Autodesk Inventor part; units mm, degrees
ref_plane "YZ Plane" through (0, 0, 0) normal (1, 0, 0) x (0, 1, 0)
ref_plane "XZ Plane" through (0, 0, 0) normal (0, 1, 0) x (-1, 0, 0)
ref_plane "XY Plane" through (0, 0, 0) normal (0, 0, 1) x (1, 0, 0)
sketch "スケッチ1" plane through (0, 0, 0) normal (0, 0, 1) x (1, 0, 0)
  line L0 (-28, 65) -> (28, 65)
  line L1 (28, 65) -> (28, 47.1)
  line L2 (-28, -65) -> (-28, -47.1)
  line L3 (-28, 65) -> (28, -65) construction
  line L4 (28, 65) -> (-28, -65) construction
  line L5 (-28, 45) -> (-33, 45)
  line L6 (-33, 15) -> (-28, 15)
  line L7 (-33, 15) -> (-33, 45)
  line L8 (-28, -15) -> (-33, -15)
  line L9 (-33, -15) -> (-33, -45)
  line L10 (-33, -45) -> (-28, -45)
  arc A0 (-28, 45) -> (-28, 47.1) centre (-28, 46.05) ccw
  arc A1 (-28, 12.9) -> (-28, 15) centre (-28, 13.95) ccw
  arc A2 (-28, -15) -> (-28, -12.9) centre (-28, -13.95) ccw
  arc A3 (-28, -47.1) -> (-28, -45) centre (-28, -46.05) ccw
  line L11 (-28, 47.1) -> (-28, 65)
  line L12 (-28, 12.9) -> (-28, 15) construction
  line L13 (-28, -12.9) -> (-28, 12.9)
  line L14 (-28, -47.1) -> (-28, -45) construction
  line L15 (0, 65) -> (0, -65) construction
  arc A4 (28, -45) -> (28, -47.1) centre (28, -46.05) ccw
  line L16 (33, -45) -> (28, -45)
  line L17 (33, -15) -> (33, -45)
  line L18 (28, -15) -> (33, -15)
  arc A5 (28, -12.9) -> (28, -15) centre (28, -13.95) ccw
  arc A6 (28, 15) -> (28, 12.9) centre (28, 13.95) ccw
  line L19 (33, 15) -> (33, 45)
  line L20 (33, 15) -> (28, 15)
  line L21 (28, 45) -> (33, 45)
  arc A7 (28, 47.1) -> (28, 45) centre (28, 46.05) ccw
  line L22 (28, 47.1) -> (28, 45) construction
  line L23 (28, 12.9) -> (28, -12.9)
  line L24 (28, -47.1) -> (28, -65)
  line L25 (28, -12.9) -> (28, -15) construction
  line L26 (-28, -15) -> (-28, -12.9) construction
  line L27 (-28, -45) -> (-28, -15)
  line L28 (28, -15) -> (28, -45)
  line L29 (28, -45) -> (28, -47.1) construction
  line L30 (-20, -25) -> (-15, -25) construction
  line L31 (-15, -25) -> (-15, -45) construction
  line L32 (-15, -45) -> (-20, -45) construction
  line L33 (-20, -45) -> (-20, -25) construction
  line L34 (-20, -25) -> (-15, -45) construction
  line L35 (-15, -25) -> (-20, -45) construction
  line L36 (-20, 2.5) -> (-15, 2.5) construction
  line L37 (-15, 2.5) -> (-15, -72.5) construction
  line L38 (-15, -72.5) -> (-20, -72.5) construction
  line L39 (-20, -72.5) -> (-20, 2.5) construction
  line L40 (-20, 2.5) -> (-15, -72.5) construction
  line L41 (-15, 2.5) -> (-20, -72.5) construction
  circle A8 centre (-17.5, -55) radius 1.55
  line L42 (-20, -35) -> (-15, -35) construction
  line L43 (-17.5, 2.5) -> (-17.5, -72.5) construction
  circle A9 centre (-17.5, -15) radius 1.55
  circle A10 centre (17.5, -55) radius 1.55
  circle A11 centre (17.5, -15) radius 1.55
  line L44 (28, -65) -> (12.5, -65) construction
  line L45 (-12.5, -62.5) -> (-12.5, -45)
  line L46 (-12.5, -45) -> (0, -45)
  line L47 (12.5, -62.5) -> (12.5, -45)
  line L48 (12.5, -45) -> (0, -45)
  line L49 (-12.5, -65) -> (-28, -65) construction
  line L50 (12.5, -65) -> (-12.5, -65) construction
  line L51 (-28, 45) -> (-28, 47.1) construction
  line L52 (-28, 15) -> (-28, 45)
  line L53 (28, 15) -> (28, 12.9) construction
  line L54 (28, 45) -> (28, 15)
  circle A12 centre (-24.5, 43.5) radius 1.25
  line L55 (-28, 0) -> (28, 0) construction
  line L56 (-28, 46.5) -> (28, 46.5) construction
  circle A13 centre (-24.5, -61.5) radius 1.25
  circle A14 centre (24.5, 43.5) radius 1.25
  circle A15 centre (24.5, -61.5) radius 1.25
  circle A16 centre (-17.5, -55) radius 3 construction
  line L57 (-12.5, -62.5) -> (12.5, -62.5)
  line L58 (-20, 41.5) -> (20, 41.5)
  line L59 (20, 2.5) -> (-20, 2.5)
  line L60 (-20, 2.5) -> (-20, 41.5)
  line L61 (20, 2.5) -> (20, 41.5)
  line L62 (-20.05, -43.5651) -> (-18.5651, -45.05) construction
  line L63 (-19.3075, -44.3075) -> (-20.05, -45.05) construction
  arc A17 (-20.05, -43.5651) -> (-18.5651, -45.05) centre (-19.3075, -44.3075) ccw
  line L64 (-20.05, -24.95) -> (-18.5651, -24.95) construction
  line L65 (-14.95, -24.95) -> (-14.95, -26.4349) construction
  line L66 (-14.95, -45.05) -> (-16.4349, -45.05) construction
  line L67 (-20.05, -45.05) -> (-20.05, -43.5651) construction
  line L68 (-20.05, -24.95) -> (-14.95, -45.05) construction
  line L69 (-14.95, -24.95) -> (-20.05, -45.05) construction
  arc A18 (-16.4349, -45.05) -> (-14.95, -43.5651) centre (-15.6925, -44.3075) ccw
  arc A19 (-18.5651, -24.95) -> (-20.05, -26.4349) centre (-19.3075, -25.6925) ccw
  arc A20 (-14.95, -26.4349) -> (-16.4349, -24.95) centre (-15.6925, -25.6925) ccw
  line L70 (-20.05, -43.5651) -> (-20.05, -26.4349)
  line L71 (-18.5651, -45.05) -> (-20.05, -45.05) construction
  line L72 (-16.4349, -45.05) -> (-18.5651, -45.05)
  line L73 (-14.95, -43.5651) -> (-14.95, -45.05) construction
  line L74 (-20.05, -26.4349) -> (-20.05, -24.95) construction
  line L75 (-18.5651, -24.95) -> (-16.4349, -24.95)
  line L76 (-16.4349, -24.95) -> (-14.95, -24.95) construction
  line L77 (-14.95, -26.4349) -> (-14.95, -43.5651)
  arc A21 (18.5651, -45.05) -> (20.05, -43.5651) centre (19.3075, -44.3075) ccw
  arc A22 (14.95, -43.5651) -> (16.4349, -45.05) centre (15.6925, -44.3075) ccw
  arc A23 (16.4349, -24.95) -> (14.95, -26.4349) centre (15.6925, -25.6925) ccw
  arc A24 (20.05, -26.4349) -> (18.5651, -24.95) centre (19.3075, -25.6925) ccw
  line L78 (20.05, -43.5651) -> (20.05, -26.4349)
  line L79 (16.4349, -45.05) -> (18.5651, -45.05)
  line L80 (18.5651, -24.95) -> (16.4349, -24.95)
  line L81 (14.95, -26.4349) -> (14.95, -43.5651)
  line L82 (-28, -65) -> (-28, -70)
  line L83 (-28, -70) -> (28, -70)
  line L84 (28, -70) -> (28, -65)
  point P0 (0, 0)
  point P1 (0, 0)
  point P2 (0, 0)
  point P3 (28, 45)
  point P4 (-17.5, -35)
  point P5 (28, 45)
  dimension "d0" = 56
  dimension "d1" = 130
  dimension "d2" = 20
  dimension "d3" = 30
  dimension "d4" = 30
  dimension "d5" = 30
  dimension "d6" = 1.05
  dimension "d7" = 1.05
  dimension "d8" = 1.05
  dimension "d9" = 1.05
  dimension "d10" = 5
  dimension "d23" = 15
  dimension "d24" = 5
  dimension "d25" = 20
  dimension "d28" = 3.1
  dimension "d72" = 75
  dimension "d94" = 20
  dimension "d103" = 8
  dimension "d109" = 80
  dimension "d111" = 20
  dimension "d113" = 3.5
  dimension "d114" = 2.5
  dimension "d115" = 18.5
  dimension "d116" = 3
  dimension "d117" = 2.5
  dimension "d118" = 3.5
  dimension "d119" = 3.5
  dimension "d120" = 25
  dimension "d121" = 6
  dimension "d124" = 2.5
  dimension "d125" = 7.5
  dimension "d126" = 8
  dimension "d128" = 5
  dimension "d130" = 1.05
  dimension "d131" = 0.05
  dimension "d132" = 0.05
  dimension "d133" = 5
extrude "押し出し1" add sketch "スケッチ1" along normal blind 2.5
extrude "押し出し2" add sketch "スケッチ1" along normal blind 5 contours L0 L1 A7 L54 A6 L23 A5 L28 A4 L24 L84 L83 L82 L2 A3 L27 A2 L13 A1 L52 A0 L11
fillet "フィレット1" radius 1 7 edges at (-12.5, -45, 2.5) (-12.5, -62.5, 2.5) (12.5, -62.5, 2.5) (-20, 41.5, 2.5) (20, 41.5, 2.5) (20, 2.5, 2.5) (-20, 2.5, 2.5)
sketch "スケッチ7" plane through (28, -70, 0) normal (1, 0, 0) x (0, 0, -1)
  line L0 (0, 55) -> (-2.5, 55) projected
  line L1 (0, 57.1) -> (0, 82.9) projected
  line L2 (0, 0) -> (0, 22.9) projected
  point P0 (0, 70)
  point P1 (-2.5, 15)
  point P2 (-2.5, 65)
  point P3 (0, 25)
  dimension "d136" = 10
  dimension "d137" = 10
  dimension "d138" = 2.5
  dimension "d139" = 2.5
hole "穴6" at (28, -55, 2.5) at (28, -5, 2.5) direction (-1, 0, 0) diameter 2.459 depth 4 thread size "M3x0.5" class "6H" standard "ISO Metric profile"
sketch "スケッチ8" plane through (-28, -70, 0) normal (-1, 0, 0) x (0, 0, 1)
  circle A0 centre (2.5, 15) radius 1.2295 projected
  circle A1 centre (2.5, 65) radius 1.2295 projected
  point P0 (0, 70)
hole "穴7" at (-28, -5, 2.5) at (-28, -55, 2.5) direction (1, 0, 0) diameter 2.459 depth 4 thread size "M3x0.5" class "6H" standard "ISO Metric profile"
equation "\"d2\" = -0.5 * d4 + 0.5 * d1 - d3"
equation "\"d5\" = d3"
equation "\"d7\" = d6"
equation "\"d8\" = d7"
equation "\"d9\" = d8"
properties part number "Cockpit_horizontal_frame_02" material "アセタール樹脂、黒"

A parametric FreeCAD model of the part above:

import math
import FreeCAD as App
import Part
import Sketcher
Q = App.Units.Quantity


def edges_at(feature, points):
    """Names of the edges that pass closest to the given points."""
    edges = feature.Shape.Edges
    near = lambda p: min(range(len(edges)), key=lambda i: edges[i].distToShape(Part.Vertex(*p))[0])
    return sorted({f"Edge{near(p) + 1}" for p in points})

doc = App.newDocument("Part")
body = doc.addObject("PartDesign::Body", "Body")

# Sketch on XY plane
sketch1 = body.newObject("Sketcher::SketchObject", "Sketch")
sketch1.AttachmentSupport = (doc.getObject("XY_Plane"), [""])
sketch1.MapMode = "FlatFace"
sketch1.addGeometry(Part.LineSegment(App.Vector(28, 65, 0), App.Vector(-28, 65, 0)), False)
sketch1.addGeometry(Part.LineSegment(App.Vector(-28, 65, 0), App.Vector(-28, 47.1, 0)), False)
sketch1.addGeometry(Part.ArcOfCircle(Part.Circle(App.Vector(-28, 46, 0), App.Vector(0, 0, 1), 1), math.radians(-90), math.radians(90)), False)
sketch1.addGeometry(Part.LineSegment(App.Vector(-28, 45, 0), App.Vector(-33, 45, 0)), False)
sketch1.addGeometry(Part.LineSegment(App.Vector(-33, 45, 0), App.Vector(-33, 15, 0)), False)
sketch1.addGeometry(Part.LineSegment(App.Vector(-33, 15, 0), App.Vector(-28, 15, 0)), False)
sketch1.addGeometry(Part.ArcOfCircle(Part.Circle(App.Vector(-28, 13.9, 0), App.Vector(0, 0, 1), 1), math.radians(-90), math.radians(90)), False)
sketch1.addGeometry(Part.LineSegment(App.Vector(-28, 12.9, 0), App.Vector(-28, -12.9, 0)), False)
sketch1.addGeometry(Part.ArcOfCircle(Part.Circle(App.Vector(-28, -13.9, 0), App.Vector(0, 0, 1), 1.1), math.radians(-90), math.radians(90)), False)
sketch1.addGeometry(Part.LineSegment(App.Vector(-28, -15, 0), App.Vector(-33, -15, 0)), False)
sketch1.addGeometry(Part.LineSegment(App.Vector(-33, -15, 0), App.Vector(-33, -45, 0)), False)
sketch1.addGeometry(Part.LineSegment(App.Vector(-33, -45, 0), App.Vector(-28, -45, 0)), False)
sketch1.addGeometry(Part.ArcOfCircle(Part.Circle(App.Vector(-28, -46, 0), App.Vector(0, 0, 1), 1.1), math.radians(-90), math.radians(90)), False)
sketch1.addGeometry(Part.LineSegment(App.Vector(-28, -47.1, 0), App.Vector(-28, -70, 0)), False)
sketch1.addGeometry(Part.LineSegment(App.Vector(-28, -70, 0), App.Vector(28, -70, 0)), False)
sketch1.addGeometry(Part.LineSegment(App.Vector(28, -70, 0), App.Vector(28, -47.1, 0)), False)
sketch1.addGeometry(Part.ArcOfCircle(Part.Circle(App.Vector(28, -46, 0), App.Vector(0, 0, 1), 1), math.radians(90), math.radians(270)), False)
sketch1.addGeometry(Part.LineSegment(App.Vector(28, -45, 0), App.Vector(33, -45, 0)), False)
sketch1.addGeometry(Part.LineSegment(App.Vector(33, -45, 0), App.Vector(33, -15, 0)), False)
sketch1.addGeometry(Part.LineSegment(App.Vector(33, -15, 0), App.Vector(28, -15, 0)), False)
sketch1.addGeometry(Part.ArcOfCircle(Part.Circle(App.Vector(28, -13.9, 0), App.Vector(0, 0, 1), 1), math.radians(90), math.radians(270)), False)
sketch1.addGeometry(Part.LineSegment(App.Vector(28, -12.9, 0), App.Vector(28, 12.9, 0)), False)
sketch1.addGeometry(Part.ArcOfCircle(Part.Circle(App.Vector(28, 13.9, 0), App.Vector(0, 0, 1), 1.1), math.radians(90), math.radians(270)), False)
sketch1.addGeometry(Part.LineSegment(App.Vector(28, 15, 0), App.Vector(33, 15, 0)), False)
sketch1.addGeometry(Part.LineSegment(App.Vector(33, 15, 0), App.Vector(33, 45, 0)), False)
sketch1.addGeometry(Part.LineSegment(App.Vector(33, 45, 0), App.Vector(28, 45, 0)), False)
sketch1.addGeometry(Part.ArcOfCircle(Part.Circle(App.Vector(28, 46, 0), App.Vector(0, 0, 1), 1.1), math.radians(90), math.radians(270)), False)
sketch1.addGeometry(Part.LineSegment(App.Vector(28, 47.1, 0), App.Vector(28, 65, 0)), False)
sketch1.addGeometry(Part.Circle(App.Vector(-24.5, -61.5, 0), App.Vector(0, 0, 1), 1.2), False)
sketch1.addGeometry(Part.Circle(App.Vector(-17.5, -55, 0), App.Vector(0, 0, 1), 1.6), False)
sketch1.addGeometry(Part.ArcOfCircle(Part.Circle(App.Vector(-19.3, -44.3, 0), App.Vector(0, 0, 1), 1), math.radians(135), math.radians(315)), False)
sketch1.addGeometry(Part.LineSegment(App.Vector(-20.1, -43.6, 0), App.Vector(-20.1, -26.4, 0)), False)
sketch1.addGeometry(Part.ArcOfCircle(Part.Circle(App.Vector(-19.3, -25.7, 0), App.Vector(0, 0, 1), 1), math.radians(45), math.radians(225)), False)
sketch1.addGeometry(Part.LineSegment(App.Vector(-18.6, -24.9, 0), App.Vector(-16.4, -24.9, 0)), False)
sketch1.addGeometry(Part.ArcOfCircle(Part.Circle(App.Vector(-15.7, -25.7, 0), App.Vector(0, 0, 1), 1), math.radians(-45), math.radians(135)), False)
sketch1.addGeometry(Part.LineSegment(App.Vector(-14.9, -26.4, 0), App.Vector(-14.9, -43.6, 0)), False)
sketch1.addGeometry(Part.ArcOfCircle(Part.Circle(App.Vector(-15.7, -44.3, 0), App.Vector(0, 0, 1), 1), math.radians(-135), math.radians(45)), False)
sketch1.addGeometry(Part.LineSegment(App.Vector(-16.4, -45, 0), App.Vector(-18.6, -45, 0)), False)
sketch1.addGeometry(Part.Circle(App.Vector(-17.5, -15, 0), App.Vector(0, 0, 1), 1.6), False)
sketch1.addGeometry(Part.LineSegment(App.Vector(12.5, -62.5, 0), App.Vector(-12.5, -62.5, 0)), False)
sketch1.addGeometry(Part.LineSegment(App.Vector(-12.5, -62.5, 0), App.Vector(-12.5, -45, 0)), False)
sketch1.addGeometry(Part.LineSegment(App.Vector(-12.5, -45, 0), App.Vector(12.5, -45, 0)), False)
sketch1.addGeometry(Part.LineSegment(App.Vector(12.5, -45, 0), App.Vector(12.5, -62.5, 0)), False)
sketch1.addGeometry(Part.Circle(App.Vector(17.5, -55, 0), App.Vector(0, 0, 1), 1.6), False)
sketch1.addGeometry(Part.Circle(App.Vector(24.5, -61.5, 0), App.Vector(0, 0, 1), 1.2), False)
sketch1.addGeometry(Part.ArcOfCircle(Part.Circle(App.Vector(19.3, -44.3, 0), App.Vector(0, 0, 1), 1), math.radians(-135), math.radians(45)), False)
sketch1.addGeometry(Part.LineSegment(App.Vector(18.6, -45, 0), App.Vector(16.4, -45, 0)), False)
sketch1.addGeometry(Part.ArcOfCircle(Part.Circle(App.Vector(15.7, -44.3, 0), App.Vector(0, 0, 1), 1), math.radians(135), math.radians(315)), False)
sketch1.addGeometry(Part.LineSegment(App.Vector(14.9, -43.6, 0), App.Vector(14.9, -26.4, 0)), False)
sketch1.addGeometry(Part.ArcOfCircle(Part.Circle(App.Vector(15.7, -25.7, 0), App.Vector(0, 0, 1), 1), math.radians(45), math.radians(225)), False)
sketch1.addGeometry(Part.LineSegment(App.Vector(16.4, -24.9, 0), App.Vector(18.6, -24.9, 0)), False)
sketch1.addGeometry(Part.ArcOfCircle(Part.Circle(App.Vector(19.3, -25.7, 0), App.Vector(0, 0, 1), 1), math.radians(-45), math.radians(135)), False)
sketch1.addGeometry(Part.LineSegment(App.Vector(20.1, -26.4, 0), App.Vector(20.1, -43.6, 0)), False)
sketch1.addGeometry(Part.Circle(App.Vector(17.5, -15, 0), App.Vector(0, 0, 1), 1.6), False)
sketch1.addGeometry(Part.Circle(App.Vector(-24.5, 43.5, 0), App.Vector(0, 0, 1), 1.2), False)
sketch1.addGeometry(Part.LineSegment(App.Vector(-20, 2.5, 0), App.Vector(-20, 41.5, 0)), False)
sketch1.addGeometry(Part.LineSegment(App.Vector(-20, 41.5, 0), App.Vector(20, 41.5, 0)), False)
sketch1.addGeometry(Part.LineSegment(App.Vector(20, 41.5, 0), App.Vector(20, 2.5, 0)), False)
sketch1.addGeometry(Part.LineSegment(App.Vector(20, 2.5, 0), App.Vector(-20, 2.5, 0)), False)
sketch1.addGeometry(Part.Circle(App.Vector(24.5, 43.5, 0), App.Vector(0, 0, 1), 1.2), False)
sketch1.addConstraint(Sketcher.Constraint("Coincident", 0, 2, 1, 1))
sketch1.addConstraint(Sketcher.Constraint("Coincident", 1, 2, 2, 2))
sketch1.addConstraint(Sketcher.Constraint("Tangent", 2, 1, 3, 1))
sketch1.addConstraint(Sketcher.Constraint("Coincident", 3, 2, 4, 1))
sketch1.addConstraint(Sketcher.Constraint("Coincident", 4, 2, 5, 1))
sketch1.addConstraint(Sketcher.Constraint("Tangent", 5, 2, 6, 2))
sketch1.addConstraint(Sketcher.Constraint("Coincident", 6, 1, 7, 1))
sketch1.addConstraint(Sketcher.Constraint("Coincident", 7, 2, 8, 2))
sketch1.addConstraint(Sketcher.Constraint("Tangent", 8, 1, 9, 1))
sketch1.addConstraint(Sketcher.Constraint("Coincident", 9, 2, 10, 1))
sketch1.addConstraint(Sketcher.Constraint("Coincident", 10, 2, 11, 1))
sketch1.addConstraint(Sketcher.Constraint("Tangent", 11, 2, 12, 2))
sketch1.addConstraint(Sketcher.Constraint("Coincident", 12, 1, 13, 1))
sketch1.addConstraint(Sketcher.Constraint("Coincident", 13, 2, 14, 1))
sketch1.addConstraint(Sketcher.Constraint("Coincident", 14, 2, 15, 1))
sketch1.addConstraint(Sketcher.Constraint("Coincident", 15, 2, 16, 2))
sketch1.addConstraint(Sketcher.Constraint("Tangent", 16, 1, 17, 1))
sketch1.addConstraint(Sketcher.Constraint("Coincident", 17, 2, 18, 1))
sketch1.addConstraint(Sketcher.Constraint("Coincident", 18, 2, 19, 1))
sketch1.addConstraint(Sketcher.Constraint("Tangent", 19, 2, 20, 2))
sketch1.addConstraint(Sketcher.Constraint("Coincident", 20, 1, 21, 1))
sketch1.addConstraint(Sketcher.Constraint("Coincident", 21, 2, 22, 2))
sketch1.addConstraint(Sketcher.Constraint("Tangent", 22, 1, 23, 1))
sketch1.addConstraint(Sketcher.Constraint("Coincident", 23, 2, 24, 1))
sketch1.addConstraint(Sketcher.Constraint("Coincident", 24, 2, 25, 1))
sketch1.addConstraint(Sketcher.Constraint("Tangent", 25, 2, 26, 2))
sketch1.addConstraint(Sketcher.Constraint("Coincident", 26, 1, 27, 1))
sketch1.addConstraint(Sketcher.Constraint("Coincident", 27, 2, 0, 1))
sketch1.addConstraint(Sketcher.Constraint("Coincident", 30, 1, 31, 1))
sketch1.addConstraint(Sketcher.Constraint("Coincident", 31, 2, 32, 2))
sketch1.addConstraint(Sketcher.Constraint("Coincident", 32, 1, 33, 1))
sketch1.addConstraint(Sketcher.Constraint("Coincident", 33, 2, 34, 2))
sketch1.addConstraint(Sketcher.Constraint("Coincident", 34, 1, 35, 1))
sketch1.addConstraint(Sketcher.Constraint("Coincident", 35, 2, 36, 2))
sketch1.addConstraint(Sketcher.Constraint("Coincident", 36, 1, 37, 1))
sketch1.addConstraint(Sketcher.Constraint("Coincident", 37, 2, 30, 2))
sketch1.addConstraint(Sketcher.Constraint("Coincident", 39, 2, 40, 1))
sketch1.addConstraint(Sketcher.Constraint("Coincident", 40, 2, 41, 1))
sketch1.addConstraint(Sketcher.Constraint("Coincident", 41, 2, 42, 1))
sketch1.addConstraint(Sketcher.Constraint("Coincident", 42, 2, 39, 1))
sketch1.addConstraint(Sketcher.Constraint("Coincident", 45, 1, 46, 1))
sketch1.addConstraint(Sketcher.Constraint("Coincident", 46, 2, 47, 2))
sketch1.addConstraint(Sketcher.Constraint("Coincident", 47, 1, 48, 1))
sketch1.addConstraint(Sketcher.Constraint("Coincident", 48, 2, 49, 2))
sketch1.addConstraint(Sketcher.Constraint("Coincident", 49, 1, 50, 1))
sketch1.addConstraint(Sketcher.Constraint("Coincident", 50, 2, 51, 2))
sketch1.addConstraint(Sketcher.Constraint("Coincident", 51, 1, 52, 1))
sketch1.addConstraint(Sketcher.Constraint("Coincident", 52, 2, 45, 2))
sketch1.addConstraint(Sketcher.Constraint("Coincident", 55, 2, 56, 1))
sketch1.addConstraint(Sketcher.Constraint("Coincident", 56, 2, 57, 1))
sketch1.addConstraint(Sketcher.Constraint("Coincident", 57, 2, 58, 1))
sketch1.addConstraint(Sketcher.Constraint("Coincident", 58, 2, 55, 1))
sketch1.addConstraint(Sketcher.Constraint("Horizontal", 0))
sketch1.addConstraint(Sketcher.Constraint("Vertical", 1))
sketch1.addConstraint(Sketcher.Constraint("Horizontal", 3))
sketch1.addConstraint(Sketcher.Constraint("Vertical", 4))
sketch1.addConstraint(Sketcher.Constraint("Horizontal", 5))
sketch1.addConstraint(Sketcher.Constraint("Vertical", 7))
sketch1.addConstraint(Sketcher.Constraint("Horizontal", 9))
sketch1.addConstraint(Sketcher.Constraint("Vertical", 10))
sketch1.addConstraint(Sketcher.Constraint("Horizontal", 11))
sketch1.addConstraint(Sketcher.Constraint("Vertical", 13))
sketch1.addConstraint(Sketcher.Constraint("Horizontal", 14))
sketch1.addConstraint(Sketcher.Constraint("Vertical", 15))
sketch1.addConstraint(Sketcher.Constraint("Horizontal", 17))
sketch1.addConstraint(Sketcher.Constraint("Vertical", 18))
sketch1.addConstraint(Sketcher.Constraint("Horizontal", 19))
sketch1.addConstraint(Sketcher.Constraint("Vertical", 21))
sketch1.addConstraint(Sketcher.Constraint("Horizontal", 23))
sketch1.addConstraint(Sketcher.Constraint("Vertical", 24))
sketch1.addConstraint(Sketcher.Constraint("Horizontal", 25))
sketch1.addConstraint(Sketcher.Constraint("Vertical", 27))
sketch1.addConstraint(Sketcher.Constraint("Vertical", 31))
sketch1.addConstraint(Sketcher.Constraint("Horizontal", 33))
sketch1.addConstraint(Sketcher.Constraint("Vertical", 35))
sketch1.addConstraint(Sketcher.Constraint("Horizontal", 37))
sketch1.addConstraint(Sketcher.Constraint("Horizontal", 39))
sketch1.addConstraint(Sketcher.Constraint("Vertical", 40))
sketch1.addConstraint(Sketcher.Constraint("Horizontal", 41))
sketch1.addConstraint(Sketcher.Constraint("Vertical", 42))
sketch1.addConstraint(Sketcher.Constraint("Horizontal", 46))
sketch1.addConstraint(Sketcher.Constraint("Vertical", 48))
sketch1.addConstraint(Sketcher.Constraint("Horizontal", 50))
sketch1.addConstraint(Sketcher.Constraint("Vertical", 52))
sketch1.addConstraint(Sketcher.Constraint("Vertical", 55))
sketch1.addConstraint(Sketcher.Constraint("Horizontal", 56))
sketch1.addConstraint(Sketcher.Constraint("Vertical", 57))
sketch1.addConstraint(Sketcher.Constraint("Horizontal", 58))
sketch1.addConstraint(Sketcher.Constraint("Equal", 2, 6))
sketch1.addConstraint(Sketcher.Constraint("Equal", 6, 8))
sketch1.addConstraint(Sketcher.Constraint("Equal", 8, 12))
sketch1.addConstraint(Sketcher.Constraint("Equal", 12, 16))
sketch1.addConstraint(Sketcher.Constraint("Equal", 16, 20))
sketch1.addConstraint(Sketcher.Constraint("Equal", 20, 22))
sketch1.addConstraint(Sketcher.Constraint("Equal", 22, 26))
sketch1.addConstraint(Sketcher.Constraint("Equal", 26, 30))
sketch1.addConstraint(Sketcher.Constraint("Equal", 30, 32))
sketch1.addConstraint(Sketcher.Constraint("Equal", 32, 34))
sketch1.addConstraint(Sketcher.Constraint("Equal", 34, 36))
sketch1.addConstraint(Sketcher.Constraint("Equal", 29, 38))
sketch1.addConstraint(Sketcher.Constraint("Equal", 38, 43))
sketch1.addConstraint(Sketcher.Constraint("Equal", 28, 44))
sketch1.addConstraint(Sketcher.Constraint("Equal", 36, 45))
sketch1.addConstraint(Sketcher.Constraint("Equal", 45, 47))
sketch1.addConstraint(Sketcher.Constraint("Equal", 47, 49))
sketch1.addConstraint(Sketcher.Constraint("Equal", 49, 51))
sketch1.addConstraint(Sketcher.Constraint("Equal", 43, 53))
sketch1.addConstraint(Sketcher.Constraint("Equal", 44, 54))
sketch1.addConstraint(Sketcher.Constraint("Equal", 54, 59))
sketch1.addConstraint(Sketcher.Constraint("Symmetric", 2, 3, 16, 3, -1, 1))
sketch1.addConstraint(Sketcher.Constraint("Symmetric", 6, 3, 20, 3, -1, 1))
sketch1.addConstraint(Sketcher.Constraint("Symmetric", 8, 3, 22, 3, -1, 1))
sketch1.addConstraint(Sketcher.Constraint("Symmetric", 12, 3, 26, 3, -1, 1))
sketch1.addConstraint(Sketcher.Constraint("Symmetric", 12, 3, 16, 3, -2))
sketch1.addConstraint(Sketcher.Constraint("Symmetric", 8, 3, 20, 3, -2))
sketch1.addConstraint(Sketcher.Constraint("Symmetric", 29, 3, 43, 3, -2))
sketch1.addConstraint(Sketcher.Constraint("Symmetric", 28, 3, 44, 3, -2))
sketch1.addConstraint(Sketcher.Constraint("Symmetric", 30, 3, 45, 3, -2))
sketch1.addConstraint(Sketcher.Constraint("Symmetric", 36, 3, 47, 3, -2))
sketch1.addConstraint(Sketcher.Constraint("Symmetric", 34, 3, 49, 3, -2))
sketch1.addConstraint(Sketcher.Constraint("Symmetric", 32, 3, 51, 3, -2))
sketch1.addConstraint(Sketcher.Constraint("Symmetric", 38, 3, 53, 3, -2))
sketch1.addConstraint(Sketcher.Constraint("Symmetric", 54, 3, 59, 3, -2))
sketch1.addConstraint(Sketcher.Constraint("Horizontal", 32, 3, 34, 3))
sketch1.addConstraint(Sketcher.Constraint("Horizontal", 30, 3, 36, 3))
sketch1.addConstraint(Sketcher.Constraint("Horizontal", 53, 3, 8, 1))
sketch1.addConstraint(Sketcher.Constraint("Horizontal", 31, 2, 34, 1))
sketch1.addConstraint(Sketcher.Constraint("Horizontal", 30, 1, 35, 2))
sketch1.addConstraint(Sketcher.Constraint("Horizontal", 17, 2, 40, 2))
sketch1.addConstraint(Sketcher.Constraint("Horizontal", 37, 2, 45, 1))
sketch1.addConstraint(Sketcher.Constraint("Horizontal", 35, 2, 47, 1))
sketch1.addConstraint(Sketcher.Constraint("Horizontal", 33, 2, 49, 1))
sketch1.addConstraint(Sketcher.Constraint("Horizontal", 48, 2, 51, 1))
sketch1.addConstraint(Sketcher.Constraint("Vertical", 2, 3, 6, 3))
sketch1.addConstraint(Sketcher.Constraint("Vertical", 30, 3, 32, 3))
sketch1.addConstraint(Sketcher.Constraint("Vertical", 29, 3, 38, 3))
sketch1.addConstraint(Sketcher.Constraint("Vertical", 28, 3, 54, 3))
sketch1.addConstraint(Sketcher.Constraint("Vertical", 12, 3, 0, 2))
sketch1.addConstraint(Sketcher.Constraint("Vertical", 5, 2, 6, 1))
sketch1.addConstraint(Sketcher.Constraint("Vertical", 4, 2, 9, 2))
sketch1.addConstraint(Sketcher.Constraint("Vertical", 11, 2, 12, 1))
sketch1.addConstraint(Sketcher.Constraint("Vertical", 26, 3, 14, 2))
sketch1.addConstraint(Sketcher.Constraint("Vertical", 19, 2, 20, 1))
sketch1.addConstraint(Sketcher.Constraint("Vertical", 18, 2, 23, 2))
sketch1.addConstraint(Sketcher.Constraint("Vertical", 25, 2, 26, 1))
sketch1.addConstraint(Sketcher.Constraint("Vertical", 33, 2, 36, 1))
sketch1.addConstraint(Sketcher.Constraint("Equal", 11, 17))
sketch1.addConstraint(Sketcher.Constraint("Diameter", 28, Q("2.5 mm")))
sketch1.addConstraint(Sketcher.Constraint("Diameter", 29, Q("3.1 mm")))
sketch1.addConstraint(Sketcher.Constraint("DistanceX", 0, 2, 0, 1, Q("56 mm")))
sketch1.addConstraint(Sketcher.Constraint("DistanceX", 3, 2, 3, 1, Q("5 mm")))
sketch1.addConstraint(Sketcher.Constraint("DistanceX", 39, 2, 39, 1, Q("25 mm")))
sketch1.addConstraint(Sketcher.Constraint("DistanceY", 4, 2, 4, 1, Q("30 mm")))
sketch1.addConstraint(Sketcher.Constraint("Radius", 2, Q("1.05 mm")))
sketch1.addConstraint(Sketcher.Constraint("DistanceY", 38, 3, -1, 1, Q("15 mm")))
sketch1.addConstraint(Sketcher.Constraint("DistanceX", 55, 2, -1, 1, Q("20 mm")))
sketch1.addConstraint(Sketcher.Constraint("DistanceX", -1, 1, 56, 2, Q("20 mm")))
sketch1.addConstraint(Sketcher.Constraint("DistanceY", -1, 1, 57, 2, Q("2.5 mm")))
sketch1.addConstraint(Sketcher.Constraint("DistanceY", 55, 1, 55, 2, Q("39 mm")))
sketch1.addConstraint(Sketcher.Constraint("DistanceY", 1, 2, 1, 1, Q("17.9 mm")))
sketch1.addConstraint(Sketcher.Constraint("DistanceY", 13, 2, 13, 1, Q("22.9 mm")))
sketch1.addConstraint(Sketcher.Constraint("DistanceY", 40, 1, 40, 2, Q("17.5 mm")))
sketch1.addConstraint(Sketcher.Constraint("DistanceY", 29, 3, -1, 1, Q("55 mm")))
sketch1.addConstraint(Sketcher.Constraint("DistanceX", 28, 3, -1, 1, Q("24.5 mm")))
sketch1.addConstraint(Sketcher.Constraint("DistanceY", 28, 3, -1, 1, Q("61.5 mm")))
sketch1.addConstraint(Sketcher.Constraint("DistanceX", 29, 3, -1, 1, Q("17.5 mm")))
sketch1.addConstraint(Sketcher.Constraint("DistanceY", -1, 1, 54, 3, Q("43.5 mm")))
sketch1.addConstraint(Sketcher.Constraint("DistanceX", 39, 2, -1, 1, Q("12.5 mm")))
sketch1.addConstraint(Sketcher.Constraint("DistanceX", 30, 1, -1, 1, Q("20.05 mm")))
sketch1.addConstraint(Sketcher.Constraint("DistanceY", 32, 1, -1, 1, Q("24.95 mm")))
sketch1.addConstraint(Sketcher.Constraint("DistanceX", 34, 1, -1, 1, Q("14.95 mm")))
sketch1.addConstraint(Sketcher.Constraint("DistanceY", 36, 1, -1, 1, Q("45.05 mm")))
sketch1.addConstraint(Sketcher.Constraint("DistanceX", 33, 1, 33, 2, Q("2.1302 mm")))
sketch1.addConstraint(Sketcher.Constraint("DistanceX", 30, 3, -1, 1, Q("19.3075 mm")))
pad1 = body.newObject("PartDesign::Pad", "Pad")
pad1.Profile = sketch1
pad1.Length = 2.5

# Sketch on XY plane
sketch2 = body.newObject("Sketcher::SketchObject", "Sketch001")
sketch2.AttachmentSupport = (doc.getObject("XY_Plane"), [""])
sketch2.MapMode = "FlatFace"
sketch2.addGeometry(Part.LineSegment(App.Vector(28, 65, 0), App.Vector(-28, 65, 0)), False)
sketch2.addGeometry(Part.LineSegment(App.Vector(-28, 65, 0), App.Vector(-28, 47.1, 0)), False)
sketch2.addGeometry(Part.ArcOfCircle(Part.Circle(App.Vector(-28, 46, 0), App.Vector(0, 0, 1), 1), math.radians(-90), math.radians(90)), False)
sketch2.addGeometry(Part.LineSegment(App.Vector(-28, 45, 0), App.Vector(-28, 15, 0)), False)
sketch2.addGeometry(Part.ArcOfCircle(Part.Circle(App.Vector(-28, 13.9, 0), App.Vector(0, 0, 1), 1), math.radians(-90), math.radians(90)), False)
sketch2.addGeometry(Part.LineSegment(App.Vector(-28, 12.9, 0), App.Vector(-28, -12.9, 0)), False)
sketch2.addGeometry(Part.ArcOfCircle(Part.Circle(App.Vector(-28, -13.9, 0), App.Vector(0, 0, 1), 1.1), math.radians(-90), math.radians(90)), False)
sketch2.addGeometry(Part.LineSegment(App.Vector(-28, -15, 0), App.Vector(-28, -45, 0)), False)
sketch2.addGeometry(Part.ArcOfCircle(Part.Circle(App.Vector(-28, -46, 0), App.Vector(0, 0, 1), 1.1), math.radians(-90), math.radians(90)), False)
sketch2.addGeometry(Part.LineSegment(App.Vector(-28, -47.1, 0), App.Vector(-28, -70, 0)), False)
sketch2.addGeometry(Part.LineSegment(App.Vector(-28, -70, 0), App.Vector(28, -70, 0)), False)
sketch2.addGeometry(Part.LineSegment(App.Vector(28, -70, 0), App.Vector(28, -47.1, 0)), False)
sketch2.addGeometry(Part.ArcOfCircle(Part.Circle(App.Vector(28, -46, 0), App.Vector(0, 0, 1), 1), math.radians(90), math.radians(270)), False)
sketch2.addGeometry(Part.LineSegment(App.Vector(28, -45, 0), App.Vector(28, -15, 0)), False)
sketch2.addGeometry(Part.ArcOfCircle(Part.Circle(App.Vector(28, -13.9, 0), App.Vector(0, 0, 1), 1), math.radians(90), math.radians(270)), False)
sketch2.addGeometry(Part.LineSegment(App.Vector(28, -12.9, 0), App.Vector(28, 12.9, 0)), False)
sketch2.addGeometry(Part.ArcOfCircle(Part.Circle(App.Vector(28, 13.9, 0), App.Vector(0, 0, 1), 1.1), math.radians(90), math.radians(270)), False)
sketch2.addGeometry(Part.LineSegment(App.Vector(28, 15, 0), App.Vector(28, 45, 0)), False)
sketch2.addGeometry(Part.ArcOfCircle(Part.Circle(App.Vector(28, 46, 0), App.Vector(0, 0, 1), 1.1), math.radians(90), math.radians(270)), False)
sketch2.addGeometry(Part.LineSegment(App.Vector(28, 47.1, 0), App.Vector(28, 65, 0)), False)
sketch2.addGeometry(Part.Circle(App.Vector(-24.5, -61.5, 0), App.Vector(0, 0, 1), 1.2), False)
sketch2.addGeometry(Part.Circle(App.Vector(-17.5, -55, 0), App.Vector(0, 0, 1), 1.6), False)
sketch2.addGeometry(Part.ArcOfCircle(Part.Circle(App.Vector(-19.3, -44.3, 0), App.Vector(0, 0, 1), 1), math.radians(135), math.radians(315)), False)
sketch2.addGeometry(Part.LineSegment(App.Vector(-20.1, -43.6, 0), App.Vector(-20.1, -26.4, 0)), False)
sketch2.addGeometry(Part.ArcOfCircle(Part.Circle(App.Vector(-19.3, -25.7, 0), App.Vector(0, 0, 1), 1), math.radians(45), math.radians(225)), False)
sketch2.addGeometry(Part.LineSegment(App.Vector(-18.6, -24.9, 0), App.Vector(-16.4, -24.9, 0)), False)
sketch2.addGeometry(Part.ArcOfCircle(Part.Circle(App.Vector(-15.7, -25.7, 0), App.Vector(0, 0, 1), 1), math.radians(-45), math.radians(135)), False)
sketch2.addGeometry(Part.LineSegment(App.Vector(-14.9, -26.4, 0), App.Vector(-14.9, -43.6, 0)), False)
sketch2.addGeometry(Part.ArcOfCircle(Part.Circle(App.Vector(-15.7, -44.3, 0), App.Vector(0, 0, 1), 1), math.radians(-135), math.radians(45)), False)
sketch2.addGeometry(Part.LineSegment(App.Vector(-16.4, -45, 0), App.Vector(-18.6, -45, 0)), False)
sketch2.addGeometry(Part.Circle(App.Vector(-17.5, -15, 0), App.Vector(0, 0, 1), 1.6), False)
sketch2.addGeometry(Part.LineSegment(App.Vector(12.5, -62.5, 0), App.Vector(-12.5, -62.5, 0)), False)
sketch2.addGeometry(Part.LineSegment(App.Vector(-12.5, -62.5, 0), App.Vector(-12.5, -45, 0)), False)
sketch2.addGeometry(Part.LineSegment(App.Vector(-12.5, -45, 0), App.Vector(12.5, -45, 0)), False)
sketch2.addGeometry(Part.LineSegment(App.Vector(12.5, -45, 0), App.Vector(12.5, -62.5, 0)), False)
sketch2.addGeometry(Part.Circle(App.Vector(17.5, -55, 0), App.Vector(0, 0, 1), 1.6), False)
sketch2.addGeometry(Part.Circle(App.Vector(24.5, -61.5, 0), App.Vector(0, 0, 1), 1.2), False)
sketch2.addGeometry(Part.ArcOfCircle(Part.Circle(App.Vector(19.3, -44.3, 0), App.Vector(0, 0, 1), 1), math.radians(-135), math.radians(45)), False)
sketch2.addGeometry(Part.LineSegment(App.Vector(18.6, -45, 0), App.Vector(16.4, -45, 0)), False)
sketch2.addGeometry(Part.ArcOfCircle(Part.Circle(App.Vector(15.7, -44.3, 0), App.Vector(0, 0, 1), 1), math.radians(135), math.radians(315)), False)
sketch2.addGeometry(Part.LineSegment(App.Vector(14.9, -43.6, 0), App.Vector(14.9, -26.4, 0)), False)
sketch2.addGeometry(Part.ArcOfCircle(Part.Circle(App.Vector(15.7, -25.7, 0), App.Vector(0, 0, 1), 1), math.radians(45), math.radians(225)), False)
sketch2.addGeometry(Part.LineSegment(App.Vector(16.4, -24.9, 0), App.Vector(18.6, -24.9, 0)), False)
sketch2.addGeometry(Part.ArcOfCircle(Part.Circle(App.Vector(19.3, -25.7, 0), App.Vector(0, 0, 1), 1), math.radians(-45), math.radians(135)), False)
sketch2.addGeometry(Part.LineSegment(App.Vector(20.1, -26.4, 0), App.Vector(20.1, -43.6, 0)), False)
sketch2.addGeometry(Part.Circle(App.Vector(17.5, -15, 0), App.Vector(0, 0, 1), 1.6), False)
sketch2.addGeometry(Part.Circle(App.Vector(-24.5, 43.5, 0), App.Vector(0, 0, 1), 1.2), False)
sketch2.addGeometry(Part.LineSegment(App.Vector(-20, 2.5, 0), App.Vector(-20, 41.5, 0)), False)
sketch2.addGeometry(Part.LineSegment(App.Vector(-20, 41.5, 0), App.Vector(20, 41.5, 0)), False)
sketch2.addGeometry(Part.LineSegment(App.Vector(20, 41.5, 0), App.Vector(20, 2.5, 0)), False)
sketch2.addGeometry(Part.LineSegment(App.Vector(20, 2.5, 0), App.Vector(-20, 2.5, 0)), False)
sketch2.addGeometry(Part.Circle(App.Vector(24.5, 43.5, 0), App.Vector(0, 0, 1), 1.2), False)
sketch2.addConstraint(Sketcher.Constraint("Coincident", 0, 2, 1, 1))
sketch2.addConstraint(Sketcher.Constraint("Coincident", 1, 2, 2, 2))
sketch2.addConstraint(Sketcher.Constraint("Coincident", 2, 1, 3, 1))
sketch2.addConstraint(Sketcher.Constraint("Coincident", 3, 2, 4, 2))
sketch2.addConstraint(Sketcher.Constraint("Coincident", 4, 1, 5, 1))
sketch2.addConstraint(Sketcher.Constraint("Coincident", 5, 2, 6, 2))
sketch2.addConstraint(Sketcher.Constraint("Coincident", 6, 1, 7, 1))
sketch2.addConstraint(Sketcher.Constraint("Coincident", 7, 2, 8, 2))
sketch2.addConstraint(Sketcher.Constraint("Coincident", 8, 1, 9, 1))
sketch2.addConstraint(Sketcher.Constraint("Coincident", 9, 2, 10, 1))
sketch2.addConstraint(Sketcher.Constraint("Coincident", 10, 2, 11, 1))
sketch2.addConstraint(Sketcher.Constraint("Coincident", 11, 2, 12, 2))
sketch2.addConstraint(Sketcher.Constraint("Coincident", 12, 1, 13, 1))
sketch2.addConstraint(Sketcher.Constraint("Coincident", 13, 2, 14, 2))
sketch2.addConstraint(Sketcher.Constraint("Coincident", 14, 1, 15, 1))
sketch2.addConstraint(Sketcher.Constraint("Coincident", 15, 2, 16, 2))
sketch2.addConstraint(Sketcher.Constraint("Coincident", 16, 1, 17, 1))
sketch2.addConstraint(Sketcher.Constraint("Coincident", 17, 2, 18, 2))
sketch2.addConstraint(Sketcher.Constraint("Coincident", 18, 1, 19, 1))
sketch2.addConstraint(Sketcher.Constraint("Coincident", 19, 2, 0, 1))
sketch2.addConstraint(Sketcher.Constraint("Coincident", 22, 1, 23, 1))
sketch2.addConstraint(Sketcher.Constraint("Coincident", 23, 2, 24, 2))
sketch2.addConstraint(Sketcher.Constraint("Coincident", 24, 1, 25, 1))
sketch2.addConstraint(Sketcher.Constraint("Coincident", 25, 2, 26, 2))
sketch2.addConstraint(Sketcher.Constraint("Coincident", 26, 1, 27, 1))
sketch2.addConstraint(Sketcher.Constraint("Coincident", 27, 2, 28, 2))
sketch2.addConstraint(Sketcher.Constraint("Coincident", 28, 1, 29, 1))
sketch2.addConstraint(Sketcher.Constraint("Coincident", 29, 2, 22, 2))
sketch2.addConstraint(Sketcher.Constraint("Coincident", 31, 2, 32, 1))
sketch2.addConstraint(Sketcher.Constraint("Coincident", 32, 2, 33, 1))
sketch2.addConstraint(Sketcher.Constraint("Coincident", 33, 2, 34, 1))
sketch2.addConstraint(Sketcher.Constraint("Coincident", 34, 2, 31, 1))
sketch2.addConstraint(Sketcher.Constraint("Coincident", 37, 1, 38, 1))
sketch2.addConstraint(Sketcher.Constraint("Coincident", 38, 2, 39, 2))
sketch2.addConstraint(Sketcher.Constraint("Coincident", 39, 1, 40, 1))
sketch2.addConstraint(Sketcher.Constraint("Coincident", 40, 2, 41, 2))
sketch2.addConstraint(Sketcher.Constraint("Coincident", 41, 1, 42, 1))
sketch2.addConstraint(Sketcher.Constraint("Coincident", 42, 2, 43, 2))
sketch2.addConstraint(Sketcher.Constraint("Coincident", 43, 1, 44, 1))
sketch2.addConstraint(Sketcher.Constraint("Coincident", 44, 2, 37, 2))
sketch2.addConstraint(Sketcher.Constraint("Coincident", 47, 2, 48, 1))
sketch2.addConstraint(Sketcher.Constraint("Coincident", 48, 2, 49, 1))
sketch2.addConstraint(Sketcher.Constraint("Coincident", 49, 2, 50, 1))
sketch2.addConstraint(Sketcher.Constraint("Coincident", 50, 2, 47, 1))
sketch2.addConstraint(Sketcher.Constraint("Horizontal", 0))
sketch2.addConstraint(Sketcher.Constraint("Vertical", 1))
sketch2.addConstraint(Sketcher.Constraint("Vertical", 3))
sketch2.addConstraint(Sketcher.Constraint("Vertical", 5))
sketch2.addConstraint(Sketcher.Constraint("Vertical", 7))
sketch2.addConstraint(Sketcher.Constraint("Vertical", 9))
sketch2.addConstraint(Sketcher.Constraint("Horizontal", 10))
sketch2.addConstraint(Sketcher.Constraint("Vertical", 11))
sketch2.addConstraint(Sketcher.Constraint("Vertical", 13))
sketch2.addConstraint(Sketcher.Constraint("Vertical", 15))
sketch2.addConstraint(Sketcher.Constraint("Vertical", 17))
sketch2.addConstraint(Sketcher.Constraint("Vertical", 19))
sketch2.addConstraint(Sketcher.Constraint("Vertical", 23))
sketch2.addConstraint(Sketcher.Constraint("Horizontal", 25))
sketch2.addConstraint(Sketcher.Constraint("Vertical", 27))
sketch2.addConstraint(Sketcher.Constraint("Horizontal", 29))
sketch2.addConstraint(Sketcher.Constraint("Horizontal", 31))
sketch2.addConstraint(Sketcher.Constraint("Vertical", 32))
sketch2.addConstraint(Sketcher.Constraint("Horizontal", 33))
sketch2.addConstraint(Sketcher.Constraint("Vertical", 34))
sketch2.addConstraint(Sketcher.Constraint("Horizontal", 38))
sketch2.addConstraint(Sketcher.Constraint("Vertical", 40))
sketch2.addConstraint(Sketcher.Constraint("Horizontal", 42))
sketch2.addConstraint(Sketcher.Constraint("Vertical", 44))
sketch2.addConstraint(Sketcher.Constraint("Vertical", 47))
sketch2.addConstraint(Sketcher.Constraint("Horizontal", 48))
sketch2.addConstraint(Sketcher.Constraint("Vertical", 49))
sketch2.addConstraint(Sketcher.Constraint("Horizontal", 50))
sketch2.addConstraint(Sketcher.Constraint("Equal", 2, 4))
sketch2.addConstraint(Sketcher.Constraint("Equal", 4, 6))
sketch2.addConstraint(Sketcher.Constraint("Equal", 6, 8))
sketch2.addConstraint(Sketcher.Constraint("Equal", 8, 12))
sketch2.addConstraint(Sketcher.Constraint("Equal", 12, 14))
sketch2.addConstraint(Sketcher.Constraint("Equal", 14, 16))
sketch2.addConstraint(Sketcher.Constraint("Equal", 16, 18))
sketch2.addConstraint(Sketcher.Constraint("Equal", 18, 22))
sketch2.addConstraint(Sketcher.Constraint("Equal", 22, 24))
sketch2.addConstraint(Sketcher.Constraint("Equal", 24, 26))
sketch2.addConstraint(Sketcher.Constraint("Equal", 26, 28))
sketch2.addConstraint(Sketcher.Constraint("Equal", 21, 30))
sketch2.addConstraint(Sketcher.Constraint("Equal", 30, 35))
sketch2.addConstraint(Sketcher.Constraint("Equal", 20, 36))
sketch2.addConstraint(Sketcher.Constraint("Equal", 28, 37))
sketch2.addConstraint(Sketcher.Constraint("Equal", 37, 39))
sketch2.addConstraint(Sketcher.Constraint("Equal", 39, 41))
sketch2.addConstraint(Sketcher.Constraint("Equal", 41, 43))
sketch2.addConstraint(Sketcher.Constraint("Equal", 35, 45))
sketch2.addConstraint(Sketcher.Constraint("Equal", 36, 46))
sketch2.addConstraint(Sketcher.Constraint("Equal", 46, 51))
sketch2.addConstraint(Sketcher.Constraint("Symmetric", 2, 3, 12, 3, -1, 1))
sketch2.addConstraint(Sketcher.Constraint("Symmetric", 4, 3, 14, 3, -1, 1))
sketch2.addConstraint(Sketcher.Constraint("Symmetric", 6, 3, 16, 3, -1, 1))
sketch2.addConstraint(Sketcher.Constraint("Symmetric", 8, 3, 18, 3, -1, 1))
sketch2.addConstraint(Sketcher.Constraint("Symmetric", 8, 3, 12, 3, -2))
sketch2.addConstraint(Sketcher.Constraint("Symmetric", 6, 3, 14, 3, -2))
sketch2.addConstraint(Sketcher.Constraint("Symmetric", 21, 3, 35, 3, -2))
sketch2.addConstraint(Sketcher.Constraint("Symmetric", 20, 3, 36, 3, -2))
sketch2.addConstraint(Sketcher.Constraint("Symmetric", 22, 3, 37, 3, -2))
sketch2.addConstraint(Sketcher.Constraint("Symmetric", 28, 3, 39, 3, -2))
sketch2.addConstraint(Sketcher.Constraint("Symmetric", 26, 3, 41, 3, -2))
sketch2.addConstraint(Sketcher.Constraint("Symmetric", 24, 3, 43, 3, -2))
sketch2.addConstraint(Sketcher.Constraint("Symmetric", 30, 3, 45, 3, -2))
sketch2.addConstraint(Sketcher.Constraint("Symmetric", 46, 3, 51, 3, -2))
sketch2.addConstraint(Sketcher.Constraint("Horizontal", 24, 3, 26, 3))
sketch2.addConstraint(Sketcher.Constraint("Horizontal", 22, 3, 28, 3))
sketch2.addConstraint(Sketcher.Constraint("Horizontal", 45, 3, 6, 1))
sketch2.addConstraint(Sketcher.Constraint("Horizontal", 23, 2, 26, 1))
sketch2.addConstraint(Sketcher.Constraint("Horizontal", 22, 1, 27, 2))
sketch2.addConstraint(Sketcher.Constraint("Horizontal", 12, 1, 32, 2))
sketch2.addConstraint(Sketcher.Constraint("Horizontal", 29, 2, 37, 1))
sketch2.addConstraint(Sketcher.Constraint("Horizontal", 27, 2, 39, 1))
sketch2.addConstraint(Sketcher.Constraint("Horizontal", 25, 2, 41, 1))
sketch2.addConstraint(Sketcher.Constraint("Horizontal", 40, 2, 43, 1))
sketch2.addConstraint(Sketcher.Constraint("Vertical", 2, 3, 4, 3))
sketch2.addConstraint(Sketcher.Constraint("Vertical", 22, 3, 24, 3))
sketch2.addConstraint(Sketcher.Constraint("Vertical", 21, 3, 30, 3))
sketch2.addConstraint(Sketcher.Constraint("Vertical", 20, 3, 46, 3))
sketch2.addConstraint(Sketcher.Constraint("Vertical", 8, 3, 0, 2))
sketch2.addConstraint(Sketcher.Constraint("Vertical", 1, 2, 2, 1))
sketch2.addConstraint(Sketcher.Constraint("Vertical", 3, 2, 4, 1))
sketch2.addConstraint(Sketcher.Constraint("Vertical", 5, 2, 6, 1))
sketch2.addConstraint(Sketcher.Constraint("Vertical", 7, 2, 8, 1))
sketch2.addConstraint(Sketcher.Constraint("Vertical", 18, 3, 10, 2))
sketch2.addConstraint(Sketcher.Constraint("Vertical", 11, 2, 12, 1))
sketch2.addConstraint(Sketcher.Constraint("Vertical", 13, 2, 14, 1))
sketch2.addConstraint(Sketcher.Constraint("Vertical", 15, 2, 16, 1))
sketch2.addConstraint(Sketcher.Constraint("Vertical", 17, 2, 18, 1))
sketch2.addConstraint(Sketcher.Constraint("Vertical", 25, 2, 28, 1))
sketch2.addConstraint(Sketcher.Constraint("Diameter", 20, Q("2.5 mm")))
sketch2.addConstraint(Sketcher.Constraint("Diameter", 21, Q("3.1 mm")))
sketch2.addConstraint(Sketcher.Constraint("DistanceX", 0, 2, 0, 1, Q("56 mm")))
sketch2.addConstraint(Sketcher.Constraint("DistanceX", 31, 2, 31, 1, Q("25 mm")))
sketch2.addConstraint(Sketcher.Constraint("DistanceY", 3, 2, 3, 1, Q("30 mm")))
sketch2.addConstraint(Sketcher.Constraint("Radius", 2, Q("1.05 mm")))
sketch2.addConstraint(Sketcher.Constraint("DistanceY", 30, 3, -1, 1, Q("15 mm")))
sketch2.addConstraint(Sketcher.Constraint("DistanceX", 47, 2, -1, 1, Q("20 mm")))
sketch2.addConstraint(Sketcher.Constraint("DistanceX", -1, 1, 48, 2, Q("20 mm")))
sketch2.addConstraint(Sketcher.Constraint("DistanceY", -1, 1, 49, 2, Q("2.5 mm")))
sketch2.addConstraint(Sketcher.Constraint("DistanceY", 47, 1, 47, 2, Q("39 mm")))
sketch2.addConstraint(Sketcher.Constraint("DistanceY", 1, 2, 1, 1, Q("17.9 mm")))
sketch2.addConstraint(Sketcher.Constraint("DistanceY", 9, 2, 9, 1, Q("22.9 mm")))
sketch2.addConstraint(Sketcher.Constraint("DistanceY", 32, 1, 32, 2, Q("17.5 mm")))
sketch2.addConstraint(Sketcher.Constraint("DistanceY", 21, 3, -1, 1, Q("55 mm")))
sketch2.addConstraint(Sketcher.Constraint("DistanceX", 20, 3, -1, 1, Q("24.5 mm")))
sketch2.addConstraint(Sketcher.Constraint("DistanceY", 20, 3, -1, 1, Q("61.5 mm")))
sketch2.addConstraint(Sketcher.Constraint("DistanceX", 21, 3, -1, 1, Q("17.5 mm")))
sketch2.addConstraint(Sketcher.Constraint("DistanceY", -1, 1, 46, 3, Q("43.5 mm")))
sketch2.addConstraint(Sketcher.Constraint("DistanceX", 31, 2, -1, 1, Q("12.5 mm")))
sketch2.addConstraint(Sketcher.Constraint("DistanceX", 22, 1, -1, 1, Q("20.05 mm")))
sketch2.addConstraint(Sketcher.Constraint("DistanceY", 24, 1, -1, 1, Q("24.95 mm")))
sketch2.addConstraint(Sketcher.Constraint("DistanceX", 26, 1, -1, 1, Q("14.95 mm")))
sketch2.addConstraint(Sketcher.Constraint("DistanceY", 28, 1, -1, 1, Q("45.05 mm")))
sketch2.addConstraint(Sketcher.Constraint("DistanceX", 25, 1, 25, 2, Q("2.1302 mm")))
sketch2.addConstraint(Sketcher.Constraint("DistanceX", 22, 3, -1, 1, Q("19.3075 mm")))
pad2 = body.newObject("PartDesign::Pad", "Pad001")
pad2.Profile = sketch2
pad2.Length = 5
doc.recompute()

fillet = body.newObject("PartDesign::Fillet", "Fillet")
fillet.Base = (pad2, edges_at(pad2, [
    (-12.5, -45, 2.5),
    (-12.5, -62.5, 2.5),
    (12.5, -62.5, 2.5),
    (-20, 41.5, 2.5),
    (20, 41.5, 2.5),
    (20, 2.5, 2.5),
    (-20, 2.5, 2.5),
]))
fillet.Radius = 1

# Sketch on YZ plane
sketch3 = body.newObject("Sketcher::SketchObject", "Sketch002")
sketch3.AttachmentSupport = (doc.getObject("YZ_Plane"), [""])
sketch3.MapMode = "FlatFace"
sketch3.AttachmentOffset = App.Placement(App.Vector(0, 0, 28), App.Rotation())
sketch3.addGeometry(Part.Circle(App.Vector(-55, 2.5, 0), App.Vector(0, 0, 1), 1.2), False)
sketch3.addGeometry(Part.Circle(App.Vector(-5, 2.5, 0), App.Vector(0, 0, 1), 1.2), False)
sketch3.addConstraint(Sketcher.Constraint("Equal", 0, 1))
sketch3.addConstraint(Sketcher.Constraint("Horizontal", 0, 3, 1, 3))
sketch3.addConstraint(Sketcher.Constraint("Diameter", 0, Q("2.459 mm")))
sketch3.addConstraint(Sketcher.Constraint("DistanceX", 0, 3, -1, 1, Q("55 mm")))
sketch3.addConstraint(Sketcher.Constraint("DistanceX", 1, 3, -1, 1, Q("5 mm")))
sketch3.addConstraint(Sketcher.Constraint("DistanceY", -1, 1, 0, 3, Q("2.5 mm")))
doc.recompute()
hole = body.newObject("PartDesign::Hole", "Hole")
hole.Profile = sketch3
hole.ThreadType = "None"
hole.Diameter = 2.459
hole.DepthType = "Dimension"
hole.Depth = 4
hole.DrillPoint = "Flat"

# Sketch on YZ plane
sketch4 = body.newObject("Sketcher::SketchObject", "Sketch003")
sketch4.AttachmentSupport = (doc.getObject("YZ_Plane"), [""])
sketch4.MapMode = "FlatFace"
sketch4.AttachmentOffset = App.Placement(App.Vector(0, 0, -28), App.Rotation())
sketch4.addGeometry(Part.Circle(App.Vector(-5, 2.5, 0), App.Vector(0, 0, 1), 1.2), False)
sketch4.addGeometry(Part.Circle(App.Vector(-55, 2.5, 0), App.Vector(0, 0, 1), 1.2), False)
sketch4.addConstraint(Sketcher.Constraint("Equal", 0, 1))
sketch4.addConstraint(Sketcher.Constraint("Horizontal", 0, 3, 1, 3))
sketch4.addConstraint(Sketcher.Constraint("Diameter", 0, Q("2.459 mm")))
sketch4.addConstraint(Sketcher.Constraint("DistanceX", 0, 3, -1, 1, Q("5 mm")))
sketch4.addConstraint(Sketcher.Constraint("DistanceX", 1, 3, -1, 1, Q("55 mm")))
sketch4.addConstraint(Sketcher.Constraint("DistanceY", -1, 1, 0, 3, Q("2.5 mm")))
doc.recompute()
hole2 = body.newObject("PartDesign::Hole", "Hole001")
hole2.Profile = sketch4
hole2.ThreadType = "None"
hole2.Diameter = 2.459
hole2.DepthType = "Dimension"
hole2.Depth = 4
hole2.DrillPoint = "Flat"
hole2.Reversed = True

doc.recompute()
